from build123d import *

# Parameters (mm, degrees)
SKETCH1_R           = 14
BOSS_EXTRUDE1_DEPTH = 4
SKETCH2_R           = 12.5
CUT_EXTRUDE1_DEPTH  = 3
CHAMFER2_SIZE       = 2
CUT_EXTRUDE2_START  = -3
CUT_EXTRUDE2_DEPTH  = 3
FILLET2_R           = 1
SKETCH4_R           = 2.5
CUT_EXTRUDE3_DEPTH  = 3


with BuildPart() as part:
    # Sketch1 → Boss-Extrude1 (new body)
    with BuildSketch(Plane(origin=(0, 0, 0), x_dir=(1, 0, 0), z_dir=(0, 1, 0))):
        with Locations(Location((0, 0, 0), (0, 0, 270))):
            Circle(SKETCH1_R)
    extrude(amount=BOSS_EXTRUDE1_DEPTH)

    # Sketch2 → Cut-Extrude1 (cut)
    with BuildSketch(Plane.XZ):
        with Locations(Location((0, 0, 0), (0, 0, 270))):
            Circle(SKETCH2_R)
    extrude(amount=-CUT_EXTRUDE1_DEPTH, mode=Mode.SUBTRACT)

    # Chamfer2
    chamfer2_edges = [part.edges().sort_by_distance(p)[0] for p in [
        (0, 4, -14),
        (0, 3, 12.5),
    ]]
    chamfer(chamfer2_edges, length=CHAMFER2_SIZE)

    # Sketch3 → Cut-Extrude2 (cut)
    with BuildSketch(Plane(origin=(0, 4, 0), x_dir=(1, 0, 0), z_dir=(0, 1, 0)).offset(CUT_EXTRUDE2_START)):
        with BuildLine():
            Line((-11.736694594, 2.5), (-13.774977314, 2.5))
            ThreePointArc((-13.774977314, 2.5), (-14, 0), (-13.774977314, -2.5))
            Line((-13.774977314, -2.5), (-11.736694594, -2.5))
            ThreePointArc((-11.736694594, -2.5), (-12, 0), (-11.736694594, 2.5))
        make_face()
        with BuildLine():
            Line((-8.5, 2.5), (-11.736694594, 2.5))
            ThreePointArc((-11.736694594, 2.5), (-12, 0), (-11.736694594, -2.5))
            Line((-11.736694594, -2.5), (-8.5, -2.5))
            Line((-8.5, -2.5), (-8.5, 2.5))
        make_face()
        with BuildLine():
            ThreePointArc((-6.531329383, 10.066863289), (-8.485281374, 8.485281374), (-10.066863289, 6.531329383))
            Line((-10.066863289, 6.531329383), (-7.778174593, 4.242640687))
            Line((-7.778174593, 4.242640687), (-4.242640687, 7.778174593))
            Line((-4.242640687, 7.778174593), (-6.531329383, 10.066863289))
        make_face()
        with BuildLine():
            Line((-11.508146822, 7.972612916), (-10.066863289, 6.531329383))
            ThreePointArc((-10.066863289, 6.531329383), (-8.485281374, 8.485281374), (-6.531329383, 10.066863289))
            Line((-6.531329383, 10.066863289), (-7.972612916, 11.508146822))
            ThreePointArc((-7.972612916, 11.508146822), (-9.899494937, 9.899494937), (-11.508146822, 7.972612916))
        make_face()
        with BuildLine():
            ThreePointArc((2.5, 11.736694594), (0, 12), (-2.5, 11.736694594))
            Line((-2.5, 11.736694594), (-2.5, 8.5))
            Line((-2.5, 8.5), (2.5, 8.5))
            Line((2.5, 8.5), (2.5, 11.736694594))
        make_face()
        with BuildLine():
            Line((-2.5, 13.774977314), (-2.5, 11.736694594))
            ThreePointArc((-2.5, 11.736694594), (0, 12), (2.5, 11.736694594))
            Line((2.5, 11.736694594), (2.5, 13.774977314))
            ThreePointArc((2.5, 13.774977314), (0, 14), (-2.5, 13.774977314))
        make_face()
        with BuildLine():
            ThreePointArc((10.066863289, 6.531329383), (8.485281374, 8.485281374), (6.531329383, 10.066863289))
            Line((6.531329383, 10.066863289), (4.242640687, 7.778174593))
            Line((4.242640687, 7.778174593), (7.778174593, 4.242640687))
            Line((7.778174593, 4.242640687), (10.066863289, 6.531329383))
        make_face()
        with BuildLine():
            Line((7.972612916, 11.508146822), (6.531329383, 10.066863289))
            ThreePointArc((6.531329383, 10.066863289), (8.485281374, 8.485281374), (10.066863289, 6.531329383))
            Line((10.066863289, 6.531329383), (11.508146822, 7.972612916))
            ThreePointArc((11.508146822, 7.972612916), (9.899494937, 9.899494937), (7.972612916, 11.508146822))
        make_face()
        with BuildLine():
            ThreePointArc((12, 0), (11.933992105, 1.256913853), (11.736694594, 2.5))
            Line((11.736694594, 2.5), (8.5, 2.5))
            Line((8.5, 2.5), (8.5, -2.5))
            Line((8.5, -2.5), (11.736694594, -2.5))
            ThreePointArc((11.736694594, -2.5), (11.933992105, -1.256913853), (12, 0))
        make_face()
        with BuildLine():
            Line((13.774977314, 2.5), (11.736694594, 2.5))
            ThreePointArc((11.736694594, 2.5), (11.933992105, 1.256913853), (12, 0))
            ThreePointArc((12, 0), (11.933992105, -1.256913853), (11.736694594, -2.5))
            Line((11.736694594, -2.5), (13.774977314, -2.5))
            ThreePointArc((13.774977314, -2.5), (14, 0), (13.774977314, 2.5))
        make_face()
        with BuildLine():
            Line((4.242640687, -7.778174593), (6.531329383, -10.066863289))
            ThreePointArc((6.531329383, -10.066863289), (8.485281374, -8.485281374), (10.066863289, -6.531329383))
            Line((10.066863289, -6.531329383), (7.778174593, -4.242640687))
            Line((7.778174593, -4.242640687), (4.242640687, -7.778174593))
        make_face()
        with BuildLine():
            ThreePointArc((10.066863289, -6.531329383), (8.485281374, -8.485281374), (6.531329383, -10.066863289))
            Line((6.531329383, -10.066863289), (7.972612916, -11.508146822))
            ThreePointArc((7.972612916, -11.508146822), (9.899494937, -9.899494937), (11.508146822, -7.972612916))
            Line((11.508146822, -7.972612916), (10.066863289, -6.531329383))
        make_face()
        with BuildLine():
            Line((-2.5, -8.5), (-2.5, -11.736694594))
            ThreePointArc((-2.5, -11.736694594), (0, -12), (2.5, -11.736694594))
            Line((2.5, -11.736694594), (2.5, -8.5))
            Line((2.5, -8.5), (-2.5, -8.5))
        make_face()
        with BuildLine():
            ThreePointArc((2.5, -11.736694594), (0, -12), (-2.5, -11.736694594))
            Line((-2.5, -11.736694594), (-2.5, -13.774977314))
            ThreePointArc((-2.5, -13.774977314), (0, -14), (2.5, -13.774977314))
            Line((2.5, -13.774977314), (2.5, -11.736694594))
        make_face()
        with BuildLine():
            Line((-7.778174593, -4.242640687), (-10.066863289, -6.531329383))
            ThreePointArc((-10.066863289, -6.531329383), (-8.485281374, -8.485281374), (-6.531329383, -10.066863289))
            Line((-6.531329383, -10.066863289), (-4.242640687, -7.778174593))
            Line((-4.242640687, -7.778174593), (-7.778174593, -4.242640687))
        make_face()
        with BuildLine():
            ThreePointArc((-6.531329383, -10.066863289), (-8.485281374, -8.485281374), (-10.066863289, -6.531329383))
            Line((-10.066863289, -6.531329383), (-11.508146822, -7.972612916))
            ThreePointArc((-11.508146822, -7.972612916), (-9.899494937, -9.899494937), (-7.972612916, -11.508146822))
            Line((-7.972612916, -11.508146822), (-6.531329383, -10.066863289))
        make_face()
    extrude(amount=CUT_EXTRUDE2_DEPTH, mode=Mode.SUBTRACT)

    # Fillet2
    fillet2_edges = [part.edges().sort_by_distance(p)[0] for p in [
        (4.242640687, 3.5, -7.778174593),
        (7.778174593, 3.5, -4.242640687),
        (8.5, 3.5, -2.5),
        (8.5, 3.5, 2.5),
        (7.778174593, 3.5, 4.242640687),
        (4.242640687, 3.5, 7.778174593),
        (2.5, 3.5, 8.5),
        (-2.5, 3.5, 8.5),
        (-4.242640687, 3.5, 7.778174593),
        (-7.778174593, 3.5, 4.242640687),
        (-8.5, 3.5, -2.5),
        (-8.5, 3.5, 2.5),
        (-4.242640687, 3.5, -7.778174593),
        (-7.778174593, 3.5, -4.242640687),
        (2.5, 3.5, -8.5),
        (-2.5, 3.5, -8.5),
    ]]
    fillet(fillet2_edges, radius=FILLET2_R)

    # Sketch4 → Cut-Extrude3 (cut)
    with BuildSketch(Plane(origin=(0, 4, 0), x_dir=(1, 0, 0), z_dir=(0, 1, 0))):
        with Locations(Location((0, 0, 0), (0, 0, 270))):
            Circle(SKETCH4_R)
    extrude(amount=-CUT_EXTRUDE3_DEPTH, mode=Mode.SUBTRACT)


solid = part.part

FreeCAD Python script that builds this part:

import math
import FreeCAD as App
import Part
import Sketcher

V = App.Vector
Q = App.Units.Quantity


def edges_at(feature, points):
    """Names of the edges that pass closest to the given points."""
    edges = feature.Shape.Edges
    near = lambda p: min(range(len(edges)), key=lambda i: edges[i].distToShape(Part.Vertex(*p))[0])
    return sorted({f"Edge{near(p) + 1}" for p in points})

doc = App.newDocument("Part")
params = doc.addObject("Spreadsheet::Sheet", "Params")
for row, (alias, value) in enumerate([
    ("sketch1_diameter", "28 mm"),
    ("pad1_length", "4 mm"),
    ("sketch2_diameter", "25 mm"),
    ("pocket1_length", "3 mm"),
    ("chamfer_size", "2 mm"),
    ("sketch3_radius", "14 mm"),
    ("sketch3_width", "5 mm"),
    ("sketch3_length", "5 mm"),
    ("pocket2_length", "3 mm"),
    ("fillet_radius", "1 mm"),
    ("sketch4_diameter", "5 mm"),
    ("pocket3_length", "3 mm"),
], start=1):
    params.set(f"A{row}", alias)
    params.set(f"B{row}", "=" + value)
    params.setAlias(f"B{row}", alias)

body = doc.addObject("PartDesign::Body", "Body")

# Sketch on XZ plane
sketch1 = body.newObject("Sketcher::SketchObject", "Sketch")
sketch1.AttachmentSupport = (doc.getObject("XZ_Plane"), [""])
sketch1.MapMode = "FlatFace"
sketch1.addGeometry(Part.Circle(V(0, 0, 0), V(0, 0, 1), 14), False)
sketch1.addConstraint(Sketcher.Constraint("Coincident", 0, 3, -1, 1))
sketch1.addConstraint(Sketcher.Constraint("Diameter", 0, Q("28 mm")))
sketch1.setExpression("Constraints[1]", "Params.sketch1_diameter")
pad1 = body.newObject("PartDesign::Pad", "Pad")
pad1.Profile = sketch1
pad1.setExpression("Length", "Params.pad1_length")
pad1.Reversed = True

# Sketch on XZ plane
sketch2 = body.newObject("Sketcher::SketchObject", "Sketch001")
sketch2.AttachmentSupport = (doc.getObject("XZ_Plane"), [""])
sketch2.MapMode = "FlatFace"
sketch2.addGeometry(Part.Circle(V(0, 0, 0), V(0, 0, 1), 12), False)
sketch2.addConstraint(Sketcher.Constraint("Coincident", 0, 3, -1, 1))
sketch2.addConstraint(Sketcher.Constraint("Diameter", 0, Q("25 mm")))
sketch2.setExpression("Constraints[1]", "Params.sketch2_diameter")
pocket1 = body.newObject("PartDesign::Pocket", "Pocket")
pocket1.Profile = sketch2
pocket1.setExpression("Length", "Params.pocket1_length")
doc.recompute()

chamfer = body.newObject("PartDesign::Chamfer", "Chamfer")
chamfer.Base = (pocket1, edges_at(pocket1, [(0, 4, -14), (0, 3, 12.5)]))
chamfer.setExpression("Size", "Params.chamfer_size")

# Sketch on XZ plane
sketch3 = body.newObject("Sketcher::SketchObject", "Sketch002")
sketch3.AttachmentSupport = (doc.getObject("XZ_Plane"), [""])
sketch3.MapMode = "FlatFace"
sketch3.AttachmentOffset = App.Placement(V(0, 0, -1), App.Rotation())
sketch3.addGeometry(Part.ArcOfCircle(Part.Circle(V(0, 0, 0), V(0, 0, 1), 14), math.radians(170), math.radians(190)), False)
sketch3.addGeometry(Part.LineSegment(V(-14, 2, 0), V(-8, 2, 0)), False)
sketch3.addGeometry(Part.LineSegment(V(-8, 2, 0), V(-8, -2, 0)), False)
sketch3.addGeometry(Part.LineSegment(V(-8, -2, 0), V(-14, -2, 0)), False)
sketch3.addGeometry(Part.LineSegment(V(-8, -4, 0), V(-4, -8, 0)), False)
sketch3.addGeometry(Part.LineSegment(V(-4, -8, 0), V(-8, -12, 0)), False)
sketch3.addGeometry(Part.ArcOfCircle(Part.Circle(V(0, 0, 0), V(0, 0, 1), 14), math.radians(-145), math.radians(-125)), False)
sketch3.addGeometry(Part.LineSegment(V(-12, -8, 0), V(-8, -4, 0)), False)
sketch3.addGeometry(Part.LineSegment(V(-2, -8, 0), V(2, -8, 0)), False)
sketch3.addGeometry(Part.LineSegment(V(2, -8, 0), V(2, -14, 0)), False)
sketch3.addGeometry(Part.ArcOfCircle(Part.Circle(V(0, 0, 0), V(0, 0, 1), 14), math.radians(-100), math.radians(-80)), False)
sketch3.addGeometry(Part.LineSegment(V(-2, -14, 0), V(-2, -8, 0)), False)
sketch3.addGeometry(Part.LineSegment(V(4, -8, 0), V(8, -4, 0)), False)
sketch3.addGeometry(Part.LineSegment(V(8, -4, 0), V(12, -8, 0)), False)
sketch3.addGeometry(Part.ArcOfCircle(Part.Circle(V(0, 0, 0), V(0, 0, 1), 14), math.radians(-55), math.radians(-35)), False)
sketch3.addGeometry(Part.LineSegment(V(8, -12, 0), V(4, -8, 0)), False)
sketch3.addGeometry(Part.LineSegment(V(8, -2, 0), V(8, 2, 0)), False)
sketch3.addGeometry(Part.LineSegment(V(8, 2, 0), V(14, 2, 0)), False)
sketch3.addGeometry(Part.ArcOfCircle(Part.Circle(V(0, 0, 0), V(0, 0, 1), 14), math.radians(-10), math.radians(10)), False)
sketch3.addGeometry(Part.LineSegment(V(14, -2, 0), V(8, -2, 0)), False)
sketch3.addGeometry(Part.LineSegment(V(4, 8, 0), V(8, 12, 0)), False)
sketch3.addGeometry(Part.ArcOfCircle(Part.Circle(V(0, 0, 0), V(0, 0, 1), 14), math.radians(35), math.radians(55)), False)
sketch3.addGeometry(Part.LineSegment(V(12, 8, 0), V(8, 4, 0)), False)
sketch3.addGeometry(Part.LineSegment(V(8, 4, 0), V(4, 8, 0)), False)
sketch3.addGeometry(Part.LineSegment(V(-2, 8, 0), V(-2, 14, 0)), False)
sketch3.addGeometry(Part.ArcOfCircle(Part.Circle(V(0, 0, 0), V(0, 0, 1), 14), math.radians(80), math.radians(100)), False)
sketch3.addGeometry(Part.LineSegment(V(2, 14, 0), V(2, 8, 0)), False)
sketch3.addGeometry(Part.LineSegment(V(2, 8, 0), V(-2, 8, 0)), False)
sketch3.addGeometry(Part.LineSegment(V(-8, 4, 0), V(-12, 8, 0)), False)
sketch3.addGeometry(Part.ArcOfCircle(Part.Circle(V(0, 0, 0), V(0, 0, 1), 14), math.radians(125), math.radians(145)), False)
sketch3.addGeometry(Part.LineSegment(V(-8, 12, 0), V(-4, 8, 0)), False)
sketch3.addGeometry(Part.LineSegment(V(-4, 8, 0), V(-8, 4, 0)), False)
sketch3.addConstraint(Sketcher.Constraint("Coincident", 0, 1, 1, 1))
sketch3.addConstraint(Sketcher.Constraint("Coincident", 1, 2, 2, 1))
sketch3.addConstraint(Sketcher.Constraint("Coincident", 2, 2, 3, 1))
sketch3.addConstraint(Sketcher.Constraint("Coincident", 3, 2, 0, 2))
sketch3.addConstraint(Sketcher.Constraint("Coincident", 4, 2, 5, 1))
sketch3.addConstraint(Sketcher.Constraint("Coincident", 5, 2, 6, 2))
sketch3.addConstraint(Sketcher.Constraint("Coincident", 6, 1, 7, 1))
sketch3.addConstraint(Sketcher.Constraint("Coincident", 7, 2, 4, 1))
sketch3.addConstraint(Sketcher.Constraint("Coincident", 8, 2, 9, 1))
sketch3.addConstraint(Sketcher.Constraint("Coincident", 9, 2, 10, 2))
sketch3.addConstraint(Sketcher.Constraint("Coincident", 10, 1, 11, 1))
sketch3.addConstraint(Sketcher.Constraint("Coincident", 11, 2, 8, 1))
sketch3.addConstraint(Sketcher.Constraint("Coincident", 12, 2, 13, 1))
sketch3.addConstraint(Sketcher.Constraint("Coincident", 13, 2, 14, 2))
sketch3.addConstraint(Sketcher.Constraint("Coincident", 14, 1, 15, 1))
sketch3.addConstraint(Sketcher.Constraint("Coincident", 15, 2, 12, 1))
sketch3.addConstraint(Sketcher.Constraint("Coincident", 16, 2, 17, 1))
sketch3.addConstraint(Sketcher.Constraint("Coincident", 17, 2, 18, 2))
sketch3.addConstraint(Sketcher.Constraint("Coincident", 18, 1, 19, 1))
sketch3.addConstraint(Sketcher.Constraint("Coincident", 19, 2, 16, 1))
sketch3.addConstraint(Sketcher.Constraint("Coincident", 20, 2, 21, 2))
sketch3.addConstraint(Sketcher.Constraint("Coincident", 21, 1, 22, 1))
sketch3.addConstraint(Sketcher.Constraint("Coincident", 22, 2, 23, 1))
sketch3.addConstraint(Sketcher.Constraint("Coincident", 23, 2, 20, 1))
sketch3.addConstraint(Sketcher.Constraint("Coincident", 24, 2, 25, 2))
sketch3.addConstraint(Sketcher.Constraint("Coincident", 25, 1, 26, 1))
sketch3.addConstraint(Sketcher.Constraint("Coincident", 26, 2, 27, 1))
sketch3.addConstraint(Sketcher.Constraint("Coincident", 27, 2, 24, 1))
sketch3.addConstraint(Sketcher.Constraint("Coincident", 28, 2, 29, 2))
sketch3.addConstraint(Sketcher.Constraint("Coincident", 29, 1, 30, 1))
sketch3.addConstraint(Sketcher.Constraint("Coincident", 30, 2, 31, 1))
sketch3.addConstraint(Sketcher.Constraint("Coincident", 31, 2, 28, 1))
sketch3.addConstraint(Sketcher.Constraint("Horizontal", 1))
sketch3.addConstraint(Sketcher.Constraint("Vertical", 2))
sketch3.addConstraint(Sketcher.Constraint("Horizontal", 3))
sketch3.addConstraint(Sketcher.Constraint("Horizontal", 8))
sketch3.addConstraint(Sketcher.Constraint("Vertical", 9))
sketch3.addConstraint(Sketcher.Constraint("Vertical", 11))
sketch3.addConstraint(Sketcher.Constraint("Vertical", 16))
sketch3.addConstraint(Sketcher.Constraint("Horizontal", 17))
sketch3.addConstraint(Sketcher.Constraint("Horizontal", 19))
sketch3.addConstraint(Sketcher.Constraint("Vertical", 24))
sketch3.addConstraint(Sketcher.Constraint("Vertical", 26))
sketch3.addConstraint(Sketcher.Constraint("Horizontal", 27))
sketch3.addConstraint(Sketcher.Constraint("Coincident", 0, 3, -1, 1))
sketch3.addConstraint(Sketcher.Constraint("Coincident", 6, 3, -1, 1))
sketch3.addConstraint(Sketcher.Constraint("Coincident", 10, 3, -1, 1))
sketch3.addConstraint(Sketcher.Constraint("Coincident", 14, 3, -1, 1))
sketch3.addConstraint(Sketcher.Constraint("Coincident", 18, 3, -1, 1))
sketch3.addConstraint(Sketcher.Constraint("Coincident", 21, 3, -1, 1))
sketch3.addConstraint(Sketcher.Constraint("Coincident", 25, 3, -1, 1))
sketch3.addConstraint(Sketcher.Constraint("Coincident", 29, 3, -1, 1))
sketch3.addConstraint(Sketcher.Constraint("Equal", 0, 6))
sketch3.addConstraint(Sketcher.Constraint("Equal", 6, 10))
sketch3.addConstraint(Sketcher.Constraint("Equal", 10, 14))
sketch3.addConstraint(Sketcher.Constraint("Equal", 14, 18))
sketch3.addConstraint(Sketcher.Constraint("Equal", 18, 21))
sketch3.addConstraint(Sketcher.Constraint("Equal", 21, 25))
sketch3.addConstraint(Sketcher.Constraint("Equal", 25, 29))
sketch3.addConstraint(Sketcher.Constraint("Symmetric", 2, 2, 16, 2, -1, 1))
sketch3.addConstraint(Sketcher.Constraint("Symmetric", 7, 2, 22, 2, -1, 1))
sketch3.addConstraint(Sketcher.Constraint("Symmetric", 4, 2, 23, 2, -1, 1))
sketch3.addConstraint(Sketcher.Constraint("Symmetric", 11, 2, 26, 2, -1, 1))
sketch3.addConstraint(Sketcher.Constraint("Symmetric", 15, 2, 30, 2, -1, 1))
sketch3.addConstraint(Sketcher.Constraint("Symmetric", 12, 2, 31, 2, -1, 1))
sketch3.addConstraint(Sketcher.Constraint("Symmetric", 7, 2, 12, 2, -2))
sketch3.addConstraint(Sketcher.Constraint("Symmetric", 4, 2, 15, 2, -2))
sketch3.addConstraint(Sketcher.Constraint("Perpendicular", 4, 5))
sketch3.addConstraint(Sketcher.Constraint("Parallel", 5, 7))
sketch3.addConstraint(Sketcher.Constraint("Parallel", 7, 12))
sketch3.addConstraint(Sketcher.Constraint("Perpendicular", 12, 13))
sketch3.addConstraint(Sketcher.Constraint("Parallel", 13, 15))
sketch3.addConstraint(Sketcher.Constraint("Perpendicular", 15, 20))
sketch3.addConstraint(Sketcher.Constraint("Parallel", 20, 22))
sketch3.addConstraint(Sketcher.Constraint("Parallel", 23, 28))
sketch3.addConstraint(Sketcher.Constraint("Parallel", 28, 30))
sketch3.addConstraint(Sketcher.Constraint("Horizontal", 9, 2, 10, 1))
sketch3.addConstraint(Sketcher.Constraint("Horizontal", 1, 2, 16, 2))
sketch3.addConstraint(Sketcher.Constraint("Horizontal", 3, 2, 18, 1))
sketch3.addConstraint(Sketcher.Constraint("Horizontal", 24, 2, 25, 1))
sketch3.addConstraint(Sketcher.Constraint("Equal", 27, 2))
sketch3.addConstraint(Sketcher.Constraint("Equal", 19, 9))
sketch3.addConstraint(Sketcher.Constraint("Equal", 5, 7))
sketch3.addConstraint(Sketcher.Constraint("Radius", 0, Q("14 mm")))
sketch3.addConstraint(Sketcher.Constraint("DistanceX", 8, 1, 8, 2, Q("5 mm")))
sketch3.addConstraint(Sketcher.Constraint("Distance", 4, Q("5 mm")))
sketch3.addConstraint(Sketcher.Constraint("DistanceX", 1, 2, 24, 2, Q("6 mm")))
sketch3.addConstraint(Sketcher.Constraint("DistanceX", 4, 2, -1, 1, Q("4.242641 mm")))
sketch3.setExpression("Constraints[83]", "Params.sketch3_radius")
sketch3.setExpression("Constraints[84]", "Params.sketch3_width")
sketch3.setExpression("Constraints[85]", "Params.sketch3_length")
pocket2 = body.newObject("PartDesign::Pocket", "Pocket001")
pocket2.Profile = sketch3
pocket2.setExpression("Length", "Params.pocket2_length")
doc.recompute()

fillet = body.newObject("PartDesign::Fillet", "Fillet")
fillet.Base = (pocket2, edges_at(pocket2, [
    (4.243, 3.5, -7.778),
    (7.778, 3.5, -4.243),
    (8.5, 3.5, -2.5),
    (8.5, 3.5, 2.5),
    (7.778, 3.5, 4.243),
    (4.243, 3.5, 7.778),
    (2.5, 3.5, 8.5),
    (-2.5, 3.5, 8.5),
    (-4.243, 3.5, 7.778),
    (-7.778, 3.5, 4.243),
    (-8.5, 3.5, -2.5),
    (-8.5, 3.5, 2.5),
    (-4.243, 3.5, -7.778),
    (-7.778, 3.5, -4.243),
    (2.5, 3.5, -8.5),
    (-2.5, 3.5, -8.5),
]))
fillet.setExpression("Radius", "Params.fillet_radius")

# Sketch on XZ plane
sketch4 = body.newObject("Sketcher::SketchObject", "Sketch003")
sketch4.AttachmentSupport = (doc.getObject("XZ_Plane"), [""])
sketch4.MapMode = "FlatFace"
sketch4.AttachmentOffset = App.Placement(V(0, 0, -4), App.Rotation())
sketch4.addGeometry(Part.Circle(V(0, 0, 0), V(0, 0, 1), 2.5), False)
sketch4.addConstraint(Sketcher.Constraint("Coincident", 0, 3, -1, 1))
sketch4.addConstraint(Sketcher.Constraint("Diameter", 0, Q("5 mm")))
sketch4.setExpression("Constraints[1]", "Params.sketch4_diameter")
pocket3 = body.newObject("PartDesign::Pocket", "Pocket002")
pocket3.Profile = sketch4
pocket3.setExpression("Length", "Params.pocket3_length")
pocket3.Reversed = True

doc.recompute()
